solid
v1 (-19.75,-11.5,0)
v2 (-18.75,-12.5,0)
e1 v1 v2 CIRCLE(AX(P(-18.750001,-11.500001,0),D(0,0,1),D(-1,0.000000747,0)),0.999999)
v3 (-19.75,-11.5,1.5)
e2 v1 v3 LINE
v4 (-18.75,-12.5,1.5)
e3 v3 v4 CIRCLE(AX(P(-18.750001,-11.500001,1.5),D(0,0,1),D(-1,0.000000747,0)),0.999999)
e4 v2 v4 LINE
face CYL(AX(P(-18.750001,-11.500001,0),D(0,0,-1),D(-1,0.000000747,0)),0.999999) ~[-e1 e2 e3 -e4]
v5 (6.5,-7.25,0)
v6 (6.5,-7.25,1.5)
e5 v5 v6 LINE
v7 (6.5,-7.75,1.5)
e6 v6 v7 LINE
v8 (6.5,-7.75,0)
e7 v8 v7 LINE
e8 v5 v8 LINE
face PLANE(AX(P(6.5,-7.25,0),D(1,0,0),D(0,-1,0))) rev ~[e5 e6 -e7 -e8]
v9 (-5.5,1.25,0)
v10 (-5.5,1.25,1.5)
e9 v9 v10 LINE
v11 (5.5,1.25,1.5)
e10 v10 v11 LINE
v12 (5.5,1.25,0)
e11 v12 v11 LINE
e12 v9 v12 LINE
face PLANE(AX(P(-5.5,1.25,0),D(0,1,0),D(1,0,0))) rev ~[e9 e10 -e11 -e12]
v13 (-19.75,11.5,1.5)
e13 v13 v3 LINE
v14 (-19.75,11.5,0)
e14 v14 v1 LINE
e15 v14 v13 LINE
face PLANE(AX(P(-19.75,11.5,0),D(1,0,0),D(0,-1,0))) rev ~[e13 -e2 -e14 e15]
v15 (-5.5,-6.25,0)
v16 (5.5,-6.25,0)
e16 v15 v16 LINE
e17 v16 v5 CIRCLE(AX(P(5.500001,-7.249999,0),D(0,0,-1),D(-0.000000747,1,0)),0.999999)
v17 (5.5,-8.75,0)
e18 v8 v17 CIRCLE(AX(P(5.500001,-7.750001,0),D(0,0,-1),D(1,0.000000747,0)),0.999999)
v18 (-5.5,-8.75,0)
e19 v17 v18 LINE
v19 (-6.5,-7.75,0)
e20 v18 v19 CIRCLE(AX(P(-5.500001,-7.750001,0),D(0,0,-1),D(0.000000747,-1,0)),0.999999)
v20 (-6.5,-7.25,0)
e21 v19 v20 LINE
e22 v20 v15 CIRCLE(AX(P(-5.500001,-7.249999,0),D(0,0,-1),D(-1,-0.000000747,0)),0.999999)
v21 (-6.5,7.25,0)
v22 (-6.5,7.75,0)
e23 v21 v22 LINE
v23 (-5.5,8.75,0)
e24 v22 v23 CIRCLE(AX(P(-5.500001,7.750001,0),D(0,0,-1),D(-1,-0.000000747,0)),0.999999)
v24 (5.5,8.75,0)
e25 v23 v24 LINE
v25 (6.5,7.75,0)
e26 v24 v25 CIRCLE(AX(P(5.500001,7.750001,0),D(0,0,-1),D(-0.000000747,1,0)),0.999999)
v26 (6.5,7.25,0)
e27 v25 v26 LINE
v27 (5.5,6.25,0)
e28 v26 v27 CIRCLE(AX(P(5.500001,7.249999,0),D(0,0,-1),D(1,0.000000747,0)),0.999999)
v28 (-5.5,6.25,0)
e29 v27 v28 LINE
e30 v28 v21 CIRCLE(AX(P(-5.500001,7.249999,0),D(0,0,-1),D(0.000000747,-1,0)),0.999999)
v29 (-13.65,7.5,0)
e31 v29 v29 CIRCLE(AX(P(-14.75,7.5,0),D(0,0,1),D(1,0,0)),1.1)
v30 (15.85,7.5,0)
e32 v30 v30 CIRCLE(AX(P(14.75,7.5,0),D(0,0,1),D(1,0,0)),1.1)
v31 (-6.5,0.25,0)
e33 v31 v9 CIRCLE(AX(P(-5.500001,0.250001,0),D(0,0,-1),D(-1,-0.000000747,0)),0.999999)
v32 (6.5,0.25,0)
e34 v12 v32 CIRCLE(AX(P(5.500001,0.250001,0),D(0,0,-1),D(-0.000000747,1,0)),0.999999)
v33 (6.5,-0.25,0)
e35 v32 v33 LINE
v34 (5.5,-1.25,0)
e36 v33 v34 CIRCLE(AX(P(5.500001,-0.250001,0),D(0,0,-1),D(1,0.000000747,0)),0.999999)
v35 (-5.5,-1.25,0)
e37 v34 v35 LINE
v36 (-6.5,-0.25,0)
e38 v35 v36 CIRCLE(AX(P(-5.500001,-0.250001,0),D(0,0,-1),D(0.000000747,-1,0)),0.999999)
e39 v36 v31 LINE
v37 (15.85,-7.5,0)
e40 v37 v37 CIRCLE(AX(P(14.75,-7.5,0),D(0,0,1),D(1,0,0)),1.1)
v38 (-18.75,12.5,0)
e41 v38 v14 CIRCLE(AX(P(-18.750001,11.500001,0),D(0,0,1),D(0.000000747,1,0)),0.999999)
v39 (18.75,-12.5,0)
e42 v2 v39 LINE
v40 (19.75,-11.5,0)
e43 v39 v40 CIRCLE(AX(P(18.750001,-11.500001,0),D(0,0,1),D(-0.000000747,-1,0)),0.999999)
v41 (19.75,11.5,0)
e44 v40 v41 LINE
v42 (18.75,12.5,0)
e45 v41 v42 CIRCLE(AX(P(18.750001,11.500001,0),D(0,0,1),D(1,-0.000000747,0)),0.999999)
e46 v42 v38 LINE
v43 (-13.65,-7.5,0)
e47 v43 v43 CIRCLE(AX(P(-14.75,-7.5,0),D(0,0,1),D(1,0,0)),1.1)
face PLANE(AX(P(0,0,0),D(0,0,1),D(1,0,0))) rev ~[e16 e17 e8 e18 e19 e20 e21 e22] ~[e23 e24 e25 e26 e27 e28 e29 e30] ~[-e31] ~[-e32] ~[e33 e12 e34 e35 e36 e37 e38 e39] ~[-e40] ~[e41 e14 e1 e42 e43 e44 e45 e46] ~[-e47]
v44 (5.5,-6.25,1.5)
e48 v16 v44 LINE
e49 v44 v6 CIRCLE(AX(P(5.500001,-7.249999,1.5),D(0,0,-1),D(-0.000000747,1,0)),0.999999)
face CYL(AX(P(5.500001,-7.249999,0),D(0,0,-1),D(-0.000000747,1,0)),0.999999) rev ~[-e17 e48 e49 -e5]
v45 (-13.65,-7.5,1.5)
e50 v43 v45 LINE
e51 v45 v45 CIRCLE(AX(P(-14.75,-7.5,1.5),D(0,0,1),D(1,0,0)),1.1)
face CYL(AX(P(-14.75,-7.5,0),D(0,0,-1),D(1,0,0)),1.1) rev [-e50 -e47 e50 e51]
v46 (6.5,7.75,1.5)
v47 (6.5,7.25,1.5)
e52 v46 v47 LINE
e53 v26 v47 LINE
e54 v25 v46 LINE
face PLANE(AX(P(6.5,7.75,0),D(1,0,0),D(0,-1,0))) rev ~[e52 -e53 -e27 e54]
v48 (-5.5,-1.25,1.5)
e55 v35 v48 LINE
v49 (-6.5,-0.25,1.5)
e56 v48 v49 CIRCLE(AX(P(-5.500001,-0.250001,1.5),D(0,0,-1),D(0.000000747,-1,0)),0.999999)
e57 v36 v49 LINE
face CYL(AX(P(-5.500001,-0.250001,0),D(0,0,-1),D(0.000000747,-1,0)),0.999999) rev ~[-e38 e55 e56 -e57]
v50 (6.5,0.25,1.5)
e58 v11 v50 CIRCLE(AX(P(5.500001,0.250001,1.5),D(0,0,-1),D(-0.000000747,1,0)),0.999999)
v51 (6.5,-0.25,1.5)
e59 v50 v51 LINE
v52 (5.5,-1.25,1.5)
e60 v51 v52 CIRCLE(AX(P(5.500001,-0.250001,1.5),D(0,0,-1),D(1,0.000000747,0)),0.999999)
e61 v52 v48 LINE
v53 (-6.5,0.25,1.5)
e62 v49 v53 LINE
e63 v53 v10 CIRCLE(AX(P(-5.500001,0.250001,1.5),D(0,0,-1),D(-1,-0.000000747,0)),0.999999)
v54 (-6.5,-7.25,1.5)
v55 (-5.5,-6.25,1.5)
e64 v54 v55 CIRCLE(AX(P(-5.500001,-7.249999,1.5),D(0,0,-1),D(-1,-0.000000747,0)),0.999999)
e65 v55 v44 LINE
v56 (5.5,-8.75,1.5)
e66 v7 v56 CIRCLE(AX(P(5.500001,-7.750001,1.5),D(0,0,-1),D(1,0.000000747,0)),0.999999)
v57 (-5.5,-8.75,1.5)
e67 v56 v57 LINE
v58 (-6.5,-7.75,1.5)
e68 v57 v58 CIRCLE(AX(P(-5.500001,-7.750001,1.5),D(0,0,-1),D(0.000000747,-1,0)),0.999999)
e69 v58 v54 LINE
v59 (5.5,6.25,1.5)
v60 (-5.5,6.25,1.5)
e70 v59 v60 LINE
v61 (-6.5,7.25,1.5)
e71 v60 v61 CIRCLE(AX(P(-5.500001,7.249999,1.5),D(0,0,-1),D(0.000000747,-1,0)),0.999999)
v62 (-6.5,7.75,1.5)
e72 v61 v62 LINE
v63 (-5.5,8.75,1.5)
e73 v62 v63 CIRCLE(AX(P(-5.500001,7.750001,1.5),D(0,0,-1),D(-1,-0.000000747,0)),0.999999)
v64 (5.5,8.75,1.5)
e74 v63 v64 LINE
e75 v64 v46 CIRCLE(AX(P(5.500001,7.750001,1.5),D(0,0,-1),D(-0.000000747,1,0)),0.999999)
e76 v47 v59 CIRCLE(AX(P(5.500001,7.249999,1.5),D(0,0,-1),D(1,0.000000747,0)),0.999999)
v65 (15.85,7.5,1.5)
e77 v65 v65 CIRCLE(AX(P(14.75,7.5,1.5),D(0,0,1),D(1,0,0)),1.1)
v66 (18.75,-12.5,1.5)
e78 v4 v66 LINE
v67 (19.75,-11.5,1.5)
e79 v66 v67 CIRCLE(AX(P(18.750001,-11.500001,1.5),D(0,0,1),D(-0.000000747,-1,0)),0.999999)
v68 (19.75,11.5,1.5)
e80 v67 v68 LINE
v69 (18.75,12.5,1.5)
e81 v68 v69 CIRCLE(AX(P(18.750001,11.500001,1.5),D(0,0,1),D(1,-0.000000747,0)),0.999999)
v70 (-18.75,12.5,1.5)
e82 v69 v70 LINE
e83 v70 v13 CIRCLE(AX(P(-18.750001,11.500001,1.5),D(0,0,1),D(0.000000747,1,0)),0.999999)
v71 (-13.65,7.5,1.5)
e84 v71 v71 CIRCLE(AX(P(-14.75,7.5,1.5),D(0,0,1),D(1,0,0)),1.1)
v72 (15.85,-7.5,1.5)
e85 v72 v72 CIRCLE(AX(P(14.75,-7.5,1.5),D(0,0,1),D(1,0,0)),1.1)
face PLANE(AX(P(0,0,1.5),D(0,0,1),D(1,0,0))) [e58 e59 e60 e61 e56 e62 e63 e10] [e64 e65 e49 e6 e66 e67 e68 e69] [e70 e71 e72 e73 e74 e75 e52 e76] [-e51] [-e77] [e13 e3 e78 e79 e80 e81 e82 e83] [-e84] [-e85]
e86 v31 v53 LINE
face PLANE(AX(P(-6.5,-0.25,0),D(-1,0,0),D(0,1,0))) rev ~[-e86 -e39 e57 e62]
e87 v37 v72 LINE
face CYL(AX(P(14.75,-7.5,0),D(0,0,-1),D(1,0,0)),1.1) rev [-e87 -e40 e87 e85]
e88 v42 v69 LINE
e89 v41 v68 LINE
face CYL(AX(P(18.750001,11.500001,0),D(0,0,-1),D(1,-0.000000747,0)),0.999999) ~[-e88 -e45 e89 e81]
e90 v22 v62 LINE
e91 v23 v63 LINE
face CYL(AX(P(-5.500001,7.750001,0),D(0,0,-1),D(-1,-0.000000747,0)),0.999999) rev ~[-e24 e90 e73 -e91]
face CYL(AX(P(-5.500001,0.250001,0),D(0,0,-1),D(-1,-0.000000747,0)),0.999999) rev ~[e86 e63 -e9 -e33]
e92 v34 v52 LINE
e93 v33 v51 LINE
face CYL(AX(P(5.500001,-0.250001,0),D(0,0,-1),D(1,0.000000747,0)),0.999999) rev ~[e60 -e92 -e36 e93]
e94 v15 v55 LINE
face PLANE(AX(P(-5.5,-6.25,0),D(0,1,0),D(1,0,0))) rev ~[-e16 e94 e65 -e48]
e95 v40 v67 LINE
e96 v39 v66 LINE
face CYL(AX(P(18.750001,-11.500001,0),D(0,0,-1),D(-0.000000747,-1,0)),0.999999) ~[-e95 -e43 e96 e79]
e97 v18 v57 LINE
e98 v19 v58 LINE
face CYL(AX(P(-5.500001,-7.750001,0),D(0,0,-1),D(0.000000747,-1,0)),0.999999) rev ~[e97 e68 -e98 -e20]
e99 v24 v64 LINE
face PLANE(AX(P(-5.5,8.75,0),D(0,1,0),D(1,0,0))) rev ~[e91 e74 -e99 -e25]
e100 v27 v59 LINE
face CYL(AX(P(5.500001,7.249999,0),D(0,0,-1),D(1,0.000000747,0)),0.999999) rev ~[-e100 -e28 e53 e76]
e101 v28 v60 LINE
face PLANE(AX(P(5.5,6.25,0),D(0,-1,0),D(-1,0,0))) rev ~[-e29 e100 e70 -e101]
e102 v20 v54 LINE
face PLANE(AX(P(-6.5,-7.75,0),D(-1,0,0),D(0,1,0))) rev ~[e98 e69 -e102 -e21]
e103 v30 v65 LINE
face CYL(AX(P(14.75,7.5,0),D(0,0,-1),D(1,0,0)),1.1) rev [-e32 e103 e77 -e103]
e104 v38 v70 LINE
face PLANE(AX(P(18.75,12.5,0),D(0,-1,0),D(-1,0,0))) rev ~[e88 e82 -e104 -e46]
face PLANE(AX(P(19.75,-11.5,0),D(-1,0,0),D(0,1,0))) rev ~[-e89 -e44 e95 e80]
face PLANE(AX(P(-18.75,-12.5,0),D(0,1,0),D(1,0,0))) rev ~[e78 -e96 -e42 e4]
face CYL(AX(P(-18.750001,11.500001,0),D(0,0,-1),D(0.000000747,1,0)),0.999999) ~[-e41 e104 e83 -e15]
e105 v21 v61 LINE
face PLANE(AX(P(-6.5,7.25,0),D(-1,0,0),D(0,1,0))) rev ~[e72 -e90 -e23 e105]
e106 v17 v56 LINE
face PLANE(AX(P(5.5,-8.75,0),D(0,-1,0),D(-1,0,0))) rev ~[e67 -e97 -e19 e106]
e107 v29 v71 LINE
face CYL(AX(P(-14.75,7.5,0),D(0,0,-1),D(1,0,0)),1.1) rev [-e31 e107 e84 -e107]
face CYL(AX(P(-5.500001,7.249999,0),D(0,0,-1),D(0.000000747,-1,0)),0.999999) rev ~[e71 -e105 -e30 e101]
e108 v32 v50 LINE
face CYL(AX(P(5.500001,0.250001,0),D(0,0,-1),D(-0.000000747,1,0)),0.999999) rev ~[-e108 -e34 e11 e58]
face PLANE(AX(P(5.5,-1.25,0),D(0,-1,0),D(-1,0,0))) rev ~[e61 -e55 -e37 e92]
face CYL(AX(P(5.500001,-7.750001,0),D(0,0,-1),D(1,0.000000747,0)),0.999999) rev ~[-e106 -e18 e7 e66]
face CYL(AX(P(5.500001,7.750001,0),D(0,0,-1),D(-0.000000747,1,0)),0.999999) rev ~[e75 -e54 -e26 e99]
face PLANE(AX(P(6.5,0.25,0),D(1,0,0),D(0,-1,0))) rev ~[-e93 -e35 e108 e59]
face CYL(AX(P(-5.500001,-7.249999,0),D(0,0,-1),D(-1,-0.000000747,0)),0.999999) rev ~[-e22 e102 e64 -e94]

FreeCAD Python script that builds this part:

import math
import FreeCAD as App
import Part
import Sketcher
from FreeCAD import Vector
Q = App.Units.Quantity

doc = App.newDocument("Part")
body = doc.addObject("PartDesign::Body", "Body")

sketch1 = body.newObject("Sketcher::SketchObject", "Sketch")
sketch1.AttachmentSupport = (doc.getObject("XY_Plane"), [""])
sketch1.MapMode = "FlatFace"
sketch1.addGeometry(Part.ArcOfCircle(Part.Circle(Vector(18.8, 11.5, 0), Vector(0, 0, 1), 1), math.radians(0), math.radians(90)), False)
sketch1.addGeometry(Part.LineSegment(Vector(18.8, 12.5, 0), Vector(-18.8, 12.5, 0)), False)
sketch1.addGeometry(Part.ArcOfCircle(Part.Circle(Vector(-18.8, 11.5, 0), Vector(0, 0, 1), 1), math.radians(90), math.radians(180)), False)
sketch1.addGeometry(Part.LineSegment(Vector(-19.8, 11.5, 0), Vector(-19.8, -11.5, 0)), False)
sketch1.addGeometry(Part.ArcOfCircle(Part.Circle(Vector(-18.8, -11.5, 0), Vector(0, 0, 1), 1), math.radians(180), math.radians(270)), False)
sketch1.addGeometry(Part.LineSegment(Vector(-18.8, -12.5, 0), Vector(18.8, -12.5, 0)), False)
sketch1.addGeometry(Part.ArcOfCircle(Part.Circle(Vector(18.8, -11.5, 0), Vector(0, 0, 1), 1), math.radians(-90), math.radians(0)), False)
sketch1.addGeometry(Part.LineSegment(Vector(19.8, -11.5, 0), Vector(19.8, 11.5, 0)), False)
sketch1.addGeometry(Part.Circle(Vector(-14.8, -7.5, 0), Vector(0, 0, 1), 1.1), False)
sketch1.addGeometry(Part.LineSegment(Vector(5.5, -8.8, 0), Vector(-5.5, -8.8, 0)), False)
sketch1.addGeometry(Part.ArcOfCircle(Part.Circle(Vector(-5.5, -7.8, 0), Vector(0, 0, 1), 1), math.radians(180), math.radians(270)), False)
sketch1.addGeometry(Part.LineSegment(Vector(-6.5, -7.8, 0), Vector(-6.5, -7.2, 0)), False)
sketch1.addGeometry(Part.ArcOfCircle(Part.Circle(Vector(-5.5, -7.2, 0), Vector(0, 0, 1), 1), math.radians(90), math.radians(180)), False)
sketch1.addGeometry(Part.LineSegment(Vector(-5.5, -6.2, 0), Vector(5.5, -6.2, 0)), False)
sketch1.addGeometry(Part.ArcOfCircle(Part.Circle(Vector(5.5, -7.2, 0), Vector(0, 0, 1), 1), math.radians(0), math.radians(90)), False)
sketch1.addGeometry(Part.LineSegment(Vector(6.5, -7.2, 0), Vector(6.5, -7.8, 0)), False)
sketch1.addGeometry(Part.ArcOfCircle(Part.Circle(Vector(5.5, -7.8, 0), Vector(0, 0, 1), 1), math.radians(-90), math.radians(0)), False)
sketch1.addGeometry(Part.Circle(Vector(14.8, -7.5, 0), Vector(0, 0, 1), 1.1), False)
sketch1.addGeometry(Part.Circle(Vector(-14.8, 7.5, 0), Vector(0, 0, 1), 1.1), False)
sketch1.addGeometry(Part.LineSegment(Vector(-6.5, -0.2, 0), Vector(-6.5, 0.2, 0)), False)
sketch1.addGeometry(Part.ArcOfCircle(Part.Circle(Vector(-5.5, 0.3, 0), Vector(0, 0, 1), 1), math.radians(90), math.radians(180)), False)
sketch1.addGeometry(Part.LineSegment(Vector(-5.5, 1.2, 0), Vector(5.5, 1.2, 0)), False)
sketch1.addGeometry(Part.ArcOfCircle(Part.Circle(Vector(5.5, 0.3, 0), Vector(0, 0, 1), 1), math.radians(0), math.radians(90)), False)
sketch1.addGeometry(Part.LineSegment(Vector(6.5, 0.2, 0), Vector(6.5, -0.2, 0)), False)
sketch1.addGeometry(Part.ArcOfCircle(Part.Circle(Vector(5.5, -0.3, 0), Vector(0, 0, 1), 1), math.radians(-90), math.radians(0)), False)
sketch1.addGeometry(Part.LineSegment(Vector(5.5, -1.2, 0), Vector(-5.5, -1.2, 0)), False)
sketch1.addGeometry(Part.ArcOfCircle(Part.Circle(Vector(-5.5, -0.3, 0), Vector(0, 0, 1), 1), math.radians(180), math.radians(270)), False)
sketch1.addGeometry(Part.LineSegment(Vector(-6.5, 7.2, 0), Vector(-6.5, 7.8, 0)), False)
sketch1.addGeometry(Part.ArcOfCircle(Part.Circle(Vector(-5.5, 7.8, 0), Vector(0, 0, 1), 1), math.radians(90), math.radians(180)), False)
sketch1.addGeometry(Part.LineSegment(Vector(-5.5, 8.8, 0), Vector(5.5, 8.8, 0)), False)
sketch1.addGeometry(Part.ArcOfCircle(Part.Circle(Vector(5.5, 7.8, 0), Vector(0, 0, 1), 1), math.radians(0), math.radians(90)), False)
sketch1.addGeometry(Part.LineSegment(Vector(6.5, 7.8, 0), Vector(6.5, 7.2, 0)), False)
sketch1.addGeometry(Part.ArcOfCircle(Part.Circle(Vector(5.5, 7.2, 0), Vector(0, 0, 1), 1), math.radians(-90), math.radians(0)), False)
sketch1.addGeometry(Part.LineSegment(Vector(5.5, 6.2, 0), Vector(-5.5, 6.2, 0)), False)
sketch1.addGeometry(Part.ArcOfCircle(Part.Circle(Vector(-5.5, 7.2, 0), Vector(0, 0, 1), 1), math.radians(180), math.radians(270)), False)
sketch1.addGeometry(Part.Circle(Vector(14.8, 7.5, 0), Vector(0, 0, 1), 1.1), False)
sketch1.addConstraint(Sketcher.Constraint("Tangent", 0, 2, 1, 1))
sketch1.addConstraint(Sketcher.Constraint("Tangent", 1, 2, 2, 1))
sketch1.addConstraint(Sketcher.Constraint("Tangent", 2, 2, 3, 1))
sketch1.addConstraint(Sketcher.Constraint("Tangent", 3, 2, 4, 1))
sketch1.addConstraint(Sketcher.Constraint("Tangent", 4, 2, 5, 1))
sketch1.addConstraint(Sketcher.Constraint("Tangent", 5, 2, 6, 1))
sketch1.addConstraint(Sketcher.Constraint("Tangent", 6, 2, 7, 1))
sketch1.addConstraint(Sketcher.Constraint("Tangent", 7, 2, 0, 1))
sketch1.addConstraint(Sketcher.Constraint("Tangent", 9, 2, 10, 2))
sketch1.addConstraint(Sketcher.Constraint("Tangent", 10, 1, 11, 1))
sketch1.addConstraint(Sketcher.Constraint("Tangent", 11, 2, 12, 2))
sketch1.addConstraint(Sketcher.Constraint("Tangent", 12, 1, 13, 1))
sketch1.addConstraint(Sketcher.Constraint("Tangent", 13, 2, 14, 2))
sketch1.addConstraint(Sketcher.Constraint("Tangent", 14, 1, 15, 1))
sketch1.addConstraint(Sketcher.Constraint("Tangent", 15, 2, 16, 2))
sketch1.addConstraint(Sketcher.Constraint("Tangent", 16, 1, 9, 1))
sketch1.addConstraint(Sketcher.Constraint("Tangent", 19, 2, 20, 2))
sketch1.addConstraint(Sketcher.Constraint("Tangent", 20, 1, 21, 1))
sketch1.addConstraint(Sketcher.Constraint("Tangent", 21, 2, 22, 2))
sketch1.addConstraint(Sketcher.Constraint("Tangent", 22, 1, 23, 1))
sketch1.addConstraint(Sketcher.Constraint("Tangent", 23, 2, 24, 2))
sketch1.addConstraint(Sketcher.Constraint("Tangent", 24, 1, 25, 1))
sketch1.addConstraint(Sketcher.Constraint("Tangent", 25, 2, 26, 2))
sketch1.addConstraint(Sketcher.Constraint("Tangent", 26, 1, 19, 1))
sketch1.addConstraint(Sketcher.Constraint("Tangent", 27, 2, 28, 2))
sketch1.addConstraint(Sketcher.Constraint("Tangent", 28, 1, 29, 1))
sketch1.addConstraint(Sketcher.Constraint("Tangent", 29, 2, 30, 2))
sketch1.addConstraint(Sketcher.Constraint("Tangent", 30, 1, 31, 1))
sketch1.addConstraint(Sketcher.Constraint("Tangent", 31, 2, 32, 2))
sketch1.addConstraint(Sketcher.Constraint("Tangent", 32, 1, 33, 1))
sketch1.addConstraint(Sketcher.Constraint("Tangent", 33, 2, 34, 2))
sketch1.addConstraint(Sketcher.Constraint("Tangent", 34, 1, 27, 1))
sketch1.addConstraint(Sketcher.Constraint("Horizontal", 1))
sketch1.addConstraint(Sketcher.Constraint("Vertical", 3))
sketch1.addConstraint(Sketcher.Constraint("Horizontal", 5))
sketch1.addConstraint(Sketcher.Constraint("Vertical", 7))
sketch1.addConstraint(Sketcher.Constraint("Horizontal", 9))
sketch1.addConstraint(Sketcher.Constraint("Vertical", 11))
sketch1.addConstraint(Sketcher.Constraint("Horizontal", 13))
sketch1.addConstraint(Sketcher.Constraint("Vertical", 15))
sketch1.addConstraint(Sketcher.Constraint("Vertical", 19))
sketch1.addConstraint(Sketcher.Constraint("Horizontal", 21))
sketch1.addConstraint(Sketcher.Constraint("Vertical", 23))
sketch1.addConstraint(Sketcher.Constraint("Horizontal", 25))
sketch1.addConstraint(Sketcher.Constraint("Vertical", 27))
sketch1.addConstraint(Sketcher.Constraint("Horizontal", 29))
sketch1.addConstraint(Sketcher.Constraint("Vertical", 31))
sketch1.addConstraint(Sketcher.Constraint("Horizontal", 33))
sketch1.addConstraint(Sketcher.Constraint("Equal", 0, 2))
sketch1.addConstraint(Sketcher.Constraint("Equal", 2, 4))
sketch1.addConstraint(Sketcher.Constraint("Equal", 4, 6))
sketch1.addConstraint(Sketcher.Constraint("Equal", 6, 10))
sketch1.addConstraint(Sketcher.Constraint("Equal", 10, 12))
sketch1.addConstraint(Sketcher.Constraint("Equal", 12, 14))
sketch1.addConstraint(Sketcher.Constraint("Equal", 14, 16))
sketch1.addConstraint(Sketcher.Constraint("Equal", 8, 17))
sketch1.addConstraint(Sketcher.Constraint("Equal", 17, 18))
sketch1.addConstraint(Sketcher.Constraint("Equal", 16, 20))
sketch1.addConstraint(Sketcher.Constraint("Equal", 20, 22))
sketch1.addConstraint(Sketcher.Constraint("Equal", 22, 24))
sketch1.addConstraint(Sketcher.Constraint("Equal", 24, 26))
sketch1.addConstraint(Sketcher.Constraint("Equal", 26, 28))
sketch1.addConstraint(Sketcher.Constraint("Equal", 28, 30))
sketch1.addConstraint(Sketcher.Constraint("Equal", 30, 32))
sketch1.addConstraint(Sketcher.Constraint("Equal", 32, 34))
sketch1.addConstraint(Sketcher.Constraint("Equal", 18, 35))
sketch1.addConstraint(Sketcher.Constraint("Symmetric", 0, 3, 4, 3, -1, 1))
sketch1.addConstraint(Sketcher.Constraint("Symmetric", 17, 3, 18, 3, -1, 1))
sketch1.addConstraint(Sketcher.Constraint("Symmetric", 20, 3, 24, 3, -1, 1))
sketch1.addConstraint(Sketcher.Constraint("Symmetric", 16, 3, 28, 3, -1, 1))
sketch1.addConstraint(Sketcher.Constraint("Symmetric", 12, 3, 32, 3, -1, 1))
sketch1.addConstraint(Sketcher.Constraint("Symmetric", 8, 3, 35, 3, -1, 1))
sketch1.addConstraint(Sketcher.Constraint("Symmetric", 8, 3, 17, 3, -2))
sketch1.addConstraint(Sketcher.Constraint("Vertical", 12, 3, 20, 3))
sketch1.addConstraint(Sketcher.Constraint("Vertical", 16, 3, 22, 3))
sketch1.addConstraint(Sketcher.Constraint("Equal", 15, 19))
sketch1.addConstraint(Sketcher.Constraint("Radius", 0, Q("0.999999 mm")))
sketch1.addConstraint(Sketcher.Constraint("Diameter", 8, Q("2.2 mm")))
sketch1.addConstraint(Sketcher.Constraint("DistanceX", 9, 2, 9, 1, Q("11 mm")))
sketch1.addConstraint(Sketcher.Constraint("DistanceY", 3, 2, 3, 1, Q("23 mm")))
sketch1.addConstraint(Sketcher.Constraint("DistanceX", 1, 2, 1, 1, Q("37.5 mm")))
sketch1.addConstraint(Sketcher.Constraint("DistanceY", 11, 1, 11, 2, Q("0.5 mm")))
sketch1.addConstraint(Sketcher.Constraint("DistanceX", 4, 3, 8, 3, Q("4.000001 mm")))
sketch1.addConstraint(Sketcher.Constraint("DistanceY", 4, 3, 8, 3, Q("4.000001 mm")))
sketch1.addConstraint(Sketcher.Constraint("DistanceY", 10, 3, 20, 3, Q("8.000001 mm")))
pad1 = body.newObject("PartDesign::Pad", "Pad")
pad1.Profile = sketch1
pad1.Length = 1.5

doc.recompute()
